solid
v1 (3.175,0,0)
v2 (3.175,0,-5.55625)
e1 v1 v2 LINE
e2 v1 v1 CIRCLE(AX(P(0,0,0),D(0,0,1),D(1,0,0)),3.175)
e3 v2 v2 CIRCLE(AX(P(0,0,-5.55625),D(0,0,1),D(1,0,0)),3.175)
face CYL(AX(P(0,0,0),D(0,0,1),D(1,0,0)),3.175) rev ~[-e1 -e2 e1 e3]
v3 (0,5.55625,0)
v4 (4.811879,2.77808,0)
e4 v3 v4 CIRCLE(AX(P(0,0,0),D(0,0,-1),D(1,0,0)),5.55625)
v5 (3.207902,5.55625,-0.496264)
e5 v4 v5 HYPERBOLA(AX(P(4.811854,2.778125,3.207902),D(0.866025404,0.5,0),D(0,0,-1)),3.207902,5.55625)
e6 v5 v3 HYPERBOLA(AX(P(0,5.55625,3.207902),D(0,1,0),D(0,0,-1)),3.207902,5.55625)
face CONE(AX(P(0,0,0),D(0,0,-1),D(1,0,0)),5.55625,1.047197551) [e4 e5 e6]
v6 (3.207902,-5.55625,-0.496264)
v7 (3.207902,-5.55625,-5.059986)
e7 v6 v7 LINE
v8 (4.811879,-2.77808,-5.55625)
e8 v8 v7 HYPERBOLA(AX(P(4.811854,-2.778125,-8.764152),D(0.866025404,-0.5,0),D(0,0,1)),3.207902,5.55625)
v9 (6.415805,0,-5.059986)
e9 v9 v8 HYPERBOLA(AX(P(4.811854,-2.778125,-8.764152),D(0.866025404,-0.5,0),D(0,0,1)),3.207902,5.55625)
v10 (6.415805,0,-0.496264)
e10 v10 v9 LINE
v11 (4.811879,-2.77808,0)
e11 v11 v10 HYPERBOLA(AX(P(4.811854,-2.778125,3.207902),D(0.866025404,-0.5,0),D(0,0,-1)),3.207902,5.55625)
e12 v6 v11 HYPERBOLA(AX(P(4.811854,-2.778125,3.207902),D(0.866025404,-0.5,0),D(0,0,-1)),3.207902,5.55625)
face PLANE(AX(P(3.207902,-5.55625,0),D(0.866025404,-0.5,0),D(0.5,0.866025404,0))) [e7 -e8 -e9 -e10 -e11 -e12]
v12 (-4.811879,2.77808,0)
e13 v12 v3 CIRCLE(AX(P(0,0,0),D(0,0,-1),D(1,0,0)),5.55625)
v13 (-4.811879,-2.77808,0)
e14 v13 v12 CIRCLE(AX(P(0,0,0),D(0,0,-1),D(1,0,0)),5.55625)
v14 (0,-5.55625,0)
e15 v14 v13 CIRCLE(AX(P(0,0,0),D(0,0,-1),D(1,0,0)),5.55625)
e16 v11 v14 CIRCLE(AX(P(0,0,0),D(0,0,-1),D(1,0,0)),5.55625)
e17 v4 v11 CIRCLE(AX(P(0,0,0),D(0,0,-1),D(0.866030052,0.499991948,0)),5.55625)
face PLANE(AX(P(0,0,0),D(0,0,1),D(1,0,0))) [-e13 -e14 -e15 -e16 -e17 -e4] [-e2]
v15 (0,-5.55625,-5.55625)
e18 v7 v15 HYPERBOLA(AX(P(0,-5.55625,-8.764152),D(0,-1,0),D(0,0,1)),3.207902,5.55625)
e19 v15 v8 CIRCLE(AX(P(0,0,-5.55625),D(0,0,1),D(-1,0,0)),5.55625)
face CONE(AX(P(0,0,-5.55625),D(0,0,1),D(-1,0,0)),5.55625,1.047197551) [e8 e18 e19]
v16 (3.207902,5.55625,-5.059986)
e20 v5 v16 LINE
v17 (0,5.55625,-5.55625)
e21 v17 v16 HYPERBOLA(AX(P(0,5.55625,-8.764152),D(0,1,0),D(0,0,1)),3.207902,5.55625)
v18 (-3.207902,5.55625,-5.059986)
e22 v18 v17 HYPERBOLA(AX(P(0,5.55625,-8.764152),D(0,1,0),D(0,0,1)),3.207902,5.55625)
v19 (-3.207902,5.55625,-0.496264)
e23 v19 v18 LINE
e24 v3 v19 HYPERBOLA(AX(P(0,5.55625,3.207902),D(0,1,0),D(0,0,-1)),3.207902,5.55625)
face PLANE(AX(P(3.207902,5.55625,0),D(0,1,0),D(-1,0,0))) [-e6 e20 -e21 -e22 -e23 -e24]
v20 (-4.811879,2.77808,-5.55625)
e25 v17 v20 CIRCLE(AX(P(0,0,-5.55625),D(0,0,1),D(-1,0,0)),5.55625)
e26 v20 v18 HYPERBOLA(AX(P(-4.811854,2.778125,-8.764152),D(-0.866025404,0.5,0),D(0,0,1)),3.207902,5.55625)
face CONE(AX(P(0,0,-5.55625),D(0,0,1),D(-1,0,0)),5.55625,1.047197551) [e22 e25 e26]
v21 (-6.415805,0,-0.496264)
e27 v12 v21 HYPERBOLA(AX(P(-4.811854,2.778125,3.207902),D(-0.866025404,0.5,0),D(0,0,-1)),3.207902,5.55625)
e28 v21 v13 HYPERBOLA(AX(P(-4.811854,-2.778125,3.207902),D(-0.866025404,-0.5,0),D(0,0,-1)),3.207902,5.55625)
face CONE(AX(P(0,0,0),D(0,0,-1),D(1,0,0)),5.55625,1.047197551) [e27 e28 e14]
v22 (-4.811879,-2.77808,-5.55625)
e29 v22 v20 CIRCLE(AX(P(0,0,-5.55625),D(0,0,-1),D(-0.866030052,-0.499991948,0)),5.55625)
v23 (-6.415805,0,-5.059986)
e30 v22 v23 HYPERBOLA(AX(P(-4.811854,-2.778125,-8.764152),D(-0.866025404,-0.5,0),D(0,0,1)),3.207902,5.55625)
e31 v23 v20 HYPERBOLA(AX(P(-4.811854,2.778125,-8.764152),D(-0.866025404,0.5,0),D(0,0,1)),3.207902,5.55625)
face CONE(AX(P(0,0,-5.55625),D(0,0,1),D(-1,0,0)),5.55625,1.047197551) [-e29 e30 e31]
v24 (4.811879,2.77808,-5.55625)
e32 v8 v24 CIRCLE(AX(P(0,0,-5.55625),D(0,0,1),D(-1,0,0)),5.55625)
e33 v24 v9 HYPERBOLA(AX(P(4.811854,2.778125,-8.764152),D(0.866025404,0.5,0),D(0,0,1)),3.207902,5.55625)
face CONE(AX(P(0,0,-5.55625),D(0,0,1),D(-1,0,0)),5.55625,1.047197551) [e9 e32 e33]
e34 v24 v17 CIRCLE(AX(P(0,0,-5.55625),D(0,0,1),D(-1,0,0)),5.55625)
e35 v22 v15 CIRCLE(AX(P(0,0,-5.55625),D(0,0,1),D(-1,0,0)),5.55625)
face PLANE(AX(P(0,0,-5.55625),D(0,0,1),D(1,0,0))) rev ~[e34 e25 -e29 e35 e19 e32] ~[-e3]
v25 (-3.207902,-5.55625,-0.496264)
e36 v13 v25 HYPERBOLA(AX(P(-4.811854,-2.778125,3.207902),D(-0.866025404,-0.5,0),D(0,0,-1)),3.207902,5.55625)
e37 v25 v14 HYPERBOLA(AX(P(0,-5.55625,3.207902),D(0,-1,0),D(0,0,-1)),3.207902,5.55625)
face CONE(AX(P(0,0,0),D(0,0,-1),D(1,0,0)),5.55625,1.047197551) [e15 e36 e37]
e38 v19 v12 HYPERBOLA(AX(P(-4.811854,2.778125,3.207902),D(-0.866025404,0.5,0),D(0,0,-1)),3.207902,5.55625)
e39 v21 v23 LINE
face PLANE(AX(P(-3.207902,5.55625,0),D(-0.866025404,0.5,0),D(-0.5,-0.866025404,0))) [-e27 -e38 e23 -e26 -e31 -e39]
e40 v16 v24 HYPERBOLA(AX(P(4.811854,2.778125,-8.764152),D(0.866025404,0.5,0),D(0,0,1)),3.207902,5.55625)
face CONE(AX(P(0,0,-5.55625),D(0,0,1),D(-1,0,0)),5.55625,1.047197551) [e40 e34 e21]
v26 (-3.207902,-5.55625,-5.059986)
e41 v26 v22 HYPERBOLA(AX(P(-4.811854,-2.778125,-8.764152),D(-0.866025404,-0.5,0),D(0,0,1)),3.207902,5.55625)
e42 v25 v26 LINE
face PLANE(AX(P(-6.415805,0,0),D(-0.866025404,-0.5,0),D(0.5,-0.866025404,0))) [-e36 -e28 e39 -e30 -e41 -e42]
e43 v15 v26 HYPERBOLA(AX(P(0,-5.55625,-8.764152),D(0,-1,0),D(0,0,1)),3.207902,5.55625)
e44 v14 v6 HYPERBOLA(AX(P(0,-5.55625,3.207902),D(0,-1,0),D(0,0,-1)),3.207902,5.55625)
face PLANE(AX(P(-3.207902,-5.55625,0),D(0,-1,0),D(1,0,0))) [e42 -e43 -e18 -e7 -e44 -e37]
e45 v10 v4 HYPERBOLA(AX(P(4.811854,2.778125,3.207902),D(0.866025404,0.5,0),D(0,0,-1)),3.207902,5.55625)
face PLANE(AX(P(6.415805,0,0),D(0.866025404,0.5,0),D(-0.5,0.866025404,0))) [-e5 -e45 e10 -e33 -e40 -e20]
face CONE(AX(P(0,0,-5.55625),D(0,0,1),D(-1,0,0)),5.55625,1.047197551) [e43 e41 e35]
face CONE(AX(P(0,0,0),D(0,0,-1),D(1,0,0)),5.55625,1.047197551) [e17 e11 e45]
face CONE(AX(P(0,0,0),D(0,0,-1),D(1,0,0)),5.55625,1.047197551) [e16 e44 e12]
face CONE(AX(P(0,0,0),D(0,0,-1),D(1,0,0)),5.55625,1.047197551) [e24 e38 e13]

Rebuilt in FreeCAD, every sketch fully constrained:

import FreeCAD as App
import Part
import Sketcher

V = App.Vector
Q = App.Units.Quantity


def add_polygon(sketch, points):
    """Adds a closed chain of lines whose ends are joined by coincident constraints."""
    first, n = sketch.GeometryCount, len(points)
    for a, b in zip(points, points[1:] + points[:1]):
        sketch.addGeometry(Part.LineSegment(App.Vector(*a, 0), App.Vector(*b, 0)), False)
    for i in range(n):
        sketch.addConstraint(Sketcher.Constraint("Coincident", first + i, 2, first + (i + 1) % n, 1))

doc = App.newDocument("Part")
body = doc.addObject("PartDesign::Body", "Body")

sketch1 = doc.addObject("Sketcher::SketchObject", "Sketch")
body.addObject(sketch1)
sketch1.AttachmentSupport = (doc.XY_Plane, [""])
sketch1.MapMode = "FlatFace"
add_polygon(sketch1, [(3.207902, -5.55625), (6.415805, 0), (3.207902, 5.55625), (-3.207902, 5.55625), (-6.415805, 0), (-3.207902, -5.55625)])
sketch1.addConstraint([
    Sketcher.Constraint("Horizontal", 2),
    Sketcher.Constraint("Horizontal", 5),
    Sketcher.Constraint("Symmetric", 0, 2, 3, 2, -1, 1),
    Sketcher.Constraint("Symmetric", 1, 2, 4, 2, -1, 1),
    Sketcher.Constraint("PointOnObject", 0, 2, -1),
    Sketcher.Constraint("Parallel", 0, 3),
    Sketcher.Constraint("Vertical", 2, 2, 4, 2),
    Sketcher.Constraint("Angle", 0, Q("60 deg")),
    Sketcher.Constraint("DistanceY", -1, 1, 1, 2, Q("0.21875 in")),
    Sketcher.Constraint("DistanceX", 2, 2, 2, 1, 6.415805),
])
pad1 = doc.addObject("PartDesign::Pad", "Pad")
body.addObject(pad1)
pad1.Profile = sketch1
pad1.Length = Q("0.21875 in")
pad1.Reversed = True

sketch2 = doc.addObject("Sketcher::SketchObject", "Sketch001")
body.addObject(sketch2)
sketch2.AttachmentSupport = (doc.XY_Plane, [""])
sketch2.MapMode = "FlatFace"
sketch2.addGeometry(Part.Circle(V(0, 0, 0), V(0, 0, 1), 3.175), False)
sketch2.addConstraint([
    Sketcher.Constraint("Coincident", 0, 3, -1, 1),
    Sketcher.Constraint("Diameter", 0, Q("0.25 in")),
])
pocket1 = doc.addObject("PartDesign::Pocket", "Pocket")
body.addObject(pocket1)
pocket1.Profile = sketch2
pocket1.Type = "ThroughAll"

sketch3 = doc.addObject("Sketcher::SketchObject", "Sketch002")
body.addObject(sketch3)
sketch3.AttachmentSupport = (doc.XY_Plane, [""])
sketch3.MapMode = "FlatFace"
sketch3.AttachmentOffset = App.Placement(V(0, 0, -0.21875 * 25.4), App.Rotation())
add_polygon(sketch3, [(53.196, 52.336), (53.196, -52.336), (-53.196, -52.336), (-53.196, 52.336)])
sketch3.addGeometry(Part.Circle(V(0, 0, 0), V(0, 0, 1), 5.55625), False)
sketch3.addConstraint([
    Sketcher.Constraint("Vertical", 0),
    Sketcher.Constraint("Horizontal", 1),
    Sketcher.Constraint("Vertical", 2),
    Sketcher.Constraint("Horizontal", 3),
    Sketcher.Constraint("Coincident", 4, 3, -1, 1),
    Sketcher.Constraint("Symmetric", 0, 2, 2, 2, -1, 1),
    Sketcher.Constraint("Diameter", 4, Q("0.4375 in")),
    Sketcher.Constraint("DistanceX", 1, 2, 1, 1, 106.392),
    Sketcher.Constraint("DistanceY", 0, 2, 0, 1, 104.672),
])
pocket2 = doc.addObject("PartDesign::Pocket", "Pocket001")
body.addObject(pocket2)
pocket2.Profile = sketch3
pocket2.Length = Q("1 in")
pocket2.Reversed = True
pocket2.TaperAngle = 60

sketch4 = doc.addObject("Sketcher::SketchObject", "Sketch003")
body.addObject(sketch4)
sketch4.AttachmentSupport = (doc.XY_Plane, [""])
sketch4.MapMode = "FlatFace"
add_polygon(sketch4, [(-26.523, 25.663), (-26.523, -25.663), (26.523, -25.663), (26.523, 25.663)])
sketch4.addGeometry(Part.Circle(V(0, 0, 0), V(0, 0, 1), 5.55625), False)
sketch4.addConstraint([
    Sketcher.Constraint("Vertical", 0),
    Sketcher.Constraint("Horizontal", 1),
    Sketcher.Constraint("Vertical", 2),
    Sketcher.Constraint("Horizontal", 3),
    Sketcher.Constraint("Coincident", 4, 3, -1, 1),
    Sketcher.Constraint("Symmetric", 0, 2, 2, 2, -1, 1),
    Sketcher.Constraint("Diameter", 4, Q("0.4375 in")),
    Sketcher.Constraint("DistanceX", 1, 1, 1, 2, 53.046),
    Sketcher.Constraint("DistanceY", 0, 2, 0, 1, 51.326),
])
pocket3 = doc.addObject("PartDesign::Pocket", "Pocket002")
body.addObject(pocket3)
pocket3.Profile = sketch4
pocket3.Length = 10
pocket3.TaperAngle = 60

doc.recompute()
